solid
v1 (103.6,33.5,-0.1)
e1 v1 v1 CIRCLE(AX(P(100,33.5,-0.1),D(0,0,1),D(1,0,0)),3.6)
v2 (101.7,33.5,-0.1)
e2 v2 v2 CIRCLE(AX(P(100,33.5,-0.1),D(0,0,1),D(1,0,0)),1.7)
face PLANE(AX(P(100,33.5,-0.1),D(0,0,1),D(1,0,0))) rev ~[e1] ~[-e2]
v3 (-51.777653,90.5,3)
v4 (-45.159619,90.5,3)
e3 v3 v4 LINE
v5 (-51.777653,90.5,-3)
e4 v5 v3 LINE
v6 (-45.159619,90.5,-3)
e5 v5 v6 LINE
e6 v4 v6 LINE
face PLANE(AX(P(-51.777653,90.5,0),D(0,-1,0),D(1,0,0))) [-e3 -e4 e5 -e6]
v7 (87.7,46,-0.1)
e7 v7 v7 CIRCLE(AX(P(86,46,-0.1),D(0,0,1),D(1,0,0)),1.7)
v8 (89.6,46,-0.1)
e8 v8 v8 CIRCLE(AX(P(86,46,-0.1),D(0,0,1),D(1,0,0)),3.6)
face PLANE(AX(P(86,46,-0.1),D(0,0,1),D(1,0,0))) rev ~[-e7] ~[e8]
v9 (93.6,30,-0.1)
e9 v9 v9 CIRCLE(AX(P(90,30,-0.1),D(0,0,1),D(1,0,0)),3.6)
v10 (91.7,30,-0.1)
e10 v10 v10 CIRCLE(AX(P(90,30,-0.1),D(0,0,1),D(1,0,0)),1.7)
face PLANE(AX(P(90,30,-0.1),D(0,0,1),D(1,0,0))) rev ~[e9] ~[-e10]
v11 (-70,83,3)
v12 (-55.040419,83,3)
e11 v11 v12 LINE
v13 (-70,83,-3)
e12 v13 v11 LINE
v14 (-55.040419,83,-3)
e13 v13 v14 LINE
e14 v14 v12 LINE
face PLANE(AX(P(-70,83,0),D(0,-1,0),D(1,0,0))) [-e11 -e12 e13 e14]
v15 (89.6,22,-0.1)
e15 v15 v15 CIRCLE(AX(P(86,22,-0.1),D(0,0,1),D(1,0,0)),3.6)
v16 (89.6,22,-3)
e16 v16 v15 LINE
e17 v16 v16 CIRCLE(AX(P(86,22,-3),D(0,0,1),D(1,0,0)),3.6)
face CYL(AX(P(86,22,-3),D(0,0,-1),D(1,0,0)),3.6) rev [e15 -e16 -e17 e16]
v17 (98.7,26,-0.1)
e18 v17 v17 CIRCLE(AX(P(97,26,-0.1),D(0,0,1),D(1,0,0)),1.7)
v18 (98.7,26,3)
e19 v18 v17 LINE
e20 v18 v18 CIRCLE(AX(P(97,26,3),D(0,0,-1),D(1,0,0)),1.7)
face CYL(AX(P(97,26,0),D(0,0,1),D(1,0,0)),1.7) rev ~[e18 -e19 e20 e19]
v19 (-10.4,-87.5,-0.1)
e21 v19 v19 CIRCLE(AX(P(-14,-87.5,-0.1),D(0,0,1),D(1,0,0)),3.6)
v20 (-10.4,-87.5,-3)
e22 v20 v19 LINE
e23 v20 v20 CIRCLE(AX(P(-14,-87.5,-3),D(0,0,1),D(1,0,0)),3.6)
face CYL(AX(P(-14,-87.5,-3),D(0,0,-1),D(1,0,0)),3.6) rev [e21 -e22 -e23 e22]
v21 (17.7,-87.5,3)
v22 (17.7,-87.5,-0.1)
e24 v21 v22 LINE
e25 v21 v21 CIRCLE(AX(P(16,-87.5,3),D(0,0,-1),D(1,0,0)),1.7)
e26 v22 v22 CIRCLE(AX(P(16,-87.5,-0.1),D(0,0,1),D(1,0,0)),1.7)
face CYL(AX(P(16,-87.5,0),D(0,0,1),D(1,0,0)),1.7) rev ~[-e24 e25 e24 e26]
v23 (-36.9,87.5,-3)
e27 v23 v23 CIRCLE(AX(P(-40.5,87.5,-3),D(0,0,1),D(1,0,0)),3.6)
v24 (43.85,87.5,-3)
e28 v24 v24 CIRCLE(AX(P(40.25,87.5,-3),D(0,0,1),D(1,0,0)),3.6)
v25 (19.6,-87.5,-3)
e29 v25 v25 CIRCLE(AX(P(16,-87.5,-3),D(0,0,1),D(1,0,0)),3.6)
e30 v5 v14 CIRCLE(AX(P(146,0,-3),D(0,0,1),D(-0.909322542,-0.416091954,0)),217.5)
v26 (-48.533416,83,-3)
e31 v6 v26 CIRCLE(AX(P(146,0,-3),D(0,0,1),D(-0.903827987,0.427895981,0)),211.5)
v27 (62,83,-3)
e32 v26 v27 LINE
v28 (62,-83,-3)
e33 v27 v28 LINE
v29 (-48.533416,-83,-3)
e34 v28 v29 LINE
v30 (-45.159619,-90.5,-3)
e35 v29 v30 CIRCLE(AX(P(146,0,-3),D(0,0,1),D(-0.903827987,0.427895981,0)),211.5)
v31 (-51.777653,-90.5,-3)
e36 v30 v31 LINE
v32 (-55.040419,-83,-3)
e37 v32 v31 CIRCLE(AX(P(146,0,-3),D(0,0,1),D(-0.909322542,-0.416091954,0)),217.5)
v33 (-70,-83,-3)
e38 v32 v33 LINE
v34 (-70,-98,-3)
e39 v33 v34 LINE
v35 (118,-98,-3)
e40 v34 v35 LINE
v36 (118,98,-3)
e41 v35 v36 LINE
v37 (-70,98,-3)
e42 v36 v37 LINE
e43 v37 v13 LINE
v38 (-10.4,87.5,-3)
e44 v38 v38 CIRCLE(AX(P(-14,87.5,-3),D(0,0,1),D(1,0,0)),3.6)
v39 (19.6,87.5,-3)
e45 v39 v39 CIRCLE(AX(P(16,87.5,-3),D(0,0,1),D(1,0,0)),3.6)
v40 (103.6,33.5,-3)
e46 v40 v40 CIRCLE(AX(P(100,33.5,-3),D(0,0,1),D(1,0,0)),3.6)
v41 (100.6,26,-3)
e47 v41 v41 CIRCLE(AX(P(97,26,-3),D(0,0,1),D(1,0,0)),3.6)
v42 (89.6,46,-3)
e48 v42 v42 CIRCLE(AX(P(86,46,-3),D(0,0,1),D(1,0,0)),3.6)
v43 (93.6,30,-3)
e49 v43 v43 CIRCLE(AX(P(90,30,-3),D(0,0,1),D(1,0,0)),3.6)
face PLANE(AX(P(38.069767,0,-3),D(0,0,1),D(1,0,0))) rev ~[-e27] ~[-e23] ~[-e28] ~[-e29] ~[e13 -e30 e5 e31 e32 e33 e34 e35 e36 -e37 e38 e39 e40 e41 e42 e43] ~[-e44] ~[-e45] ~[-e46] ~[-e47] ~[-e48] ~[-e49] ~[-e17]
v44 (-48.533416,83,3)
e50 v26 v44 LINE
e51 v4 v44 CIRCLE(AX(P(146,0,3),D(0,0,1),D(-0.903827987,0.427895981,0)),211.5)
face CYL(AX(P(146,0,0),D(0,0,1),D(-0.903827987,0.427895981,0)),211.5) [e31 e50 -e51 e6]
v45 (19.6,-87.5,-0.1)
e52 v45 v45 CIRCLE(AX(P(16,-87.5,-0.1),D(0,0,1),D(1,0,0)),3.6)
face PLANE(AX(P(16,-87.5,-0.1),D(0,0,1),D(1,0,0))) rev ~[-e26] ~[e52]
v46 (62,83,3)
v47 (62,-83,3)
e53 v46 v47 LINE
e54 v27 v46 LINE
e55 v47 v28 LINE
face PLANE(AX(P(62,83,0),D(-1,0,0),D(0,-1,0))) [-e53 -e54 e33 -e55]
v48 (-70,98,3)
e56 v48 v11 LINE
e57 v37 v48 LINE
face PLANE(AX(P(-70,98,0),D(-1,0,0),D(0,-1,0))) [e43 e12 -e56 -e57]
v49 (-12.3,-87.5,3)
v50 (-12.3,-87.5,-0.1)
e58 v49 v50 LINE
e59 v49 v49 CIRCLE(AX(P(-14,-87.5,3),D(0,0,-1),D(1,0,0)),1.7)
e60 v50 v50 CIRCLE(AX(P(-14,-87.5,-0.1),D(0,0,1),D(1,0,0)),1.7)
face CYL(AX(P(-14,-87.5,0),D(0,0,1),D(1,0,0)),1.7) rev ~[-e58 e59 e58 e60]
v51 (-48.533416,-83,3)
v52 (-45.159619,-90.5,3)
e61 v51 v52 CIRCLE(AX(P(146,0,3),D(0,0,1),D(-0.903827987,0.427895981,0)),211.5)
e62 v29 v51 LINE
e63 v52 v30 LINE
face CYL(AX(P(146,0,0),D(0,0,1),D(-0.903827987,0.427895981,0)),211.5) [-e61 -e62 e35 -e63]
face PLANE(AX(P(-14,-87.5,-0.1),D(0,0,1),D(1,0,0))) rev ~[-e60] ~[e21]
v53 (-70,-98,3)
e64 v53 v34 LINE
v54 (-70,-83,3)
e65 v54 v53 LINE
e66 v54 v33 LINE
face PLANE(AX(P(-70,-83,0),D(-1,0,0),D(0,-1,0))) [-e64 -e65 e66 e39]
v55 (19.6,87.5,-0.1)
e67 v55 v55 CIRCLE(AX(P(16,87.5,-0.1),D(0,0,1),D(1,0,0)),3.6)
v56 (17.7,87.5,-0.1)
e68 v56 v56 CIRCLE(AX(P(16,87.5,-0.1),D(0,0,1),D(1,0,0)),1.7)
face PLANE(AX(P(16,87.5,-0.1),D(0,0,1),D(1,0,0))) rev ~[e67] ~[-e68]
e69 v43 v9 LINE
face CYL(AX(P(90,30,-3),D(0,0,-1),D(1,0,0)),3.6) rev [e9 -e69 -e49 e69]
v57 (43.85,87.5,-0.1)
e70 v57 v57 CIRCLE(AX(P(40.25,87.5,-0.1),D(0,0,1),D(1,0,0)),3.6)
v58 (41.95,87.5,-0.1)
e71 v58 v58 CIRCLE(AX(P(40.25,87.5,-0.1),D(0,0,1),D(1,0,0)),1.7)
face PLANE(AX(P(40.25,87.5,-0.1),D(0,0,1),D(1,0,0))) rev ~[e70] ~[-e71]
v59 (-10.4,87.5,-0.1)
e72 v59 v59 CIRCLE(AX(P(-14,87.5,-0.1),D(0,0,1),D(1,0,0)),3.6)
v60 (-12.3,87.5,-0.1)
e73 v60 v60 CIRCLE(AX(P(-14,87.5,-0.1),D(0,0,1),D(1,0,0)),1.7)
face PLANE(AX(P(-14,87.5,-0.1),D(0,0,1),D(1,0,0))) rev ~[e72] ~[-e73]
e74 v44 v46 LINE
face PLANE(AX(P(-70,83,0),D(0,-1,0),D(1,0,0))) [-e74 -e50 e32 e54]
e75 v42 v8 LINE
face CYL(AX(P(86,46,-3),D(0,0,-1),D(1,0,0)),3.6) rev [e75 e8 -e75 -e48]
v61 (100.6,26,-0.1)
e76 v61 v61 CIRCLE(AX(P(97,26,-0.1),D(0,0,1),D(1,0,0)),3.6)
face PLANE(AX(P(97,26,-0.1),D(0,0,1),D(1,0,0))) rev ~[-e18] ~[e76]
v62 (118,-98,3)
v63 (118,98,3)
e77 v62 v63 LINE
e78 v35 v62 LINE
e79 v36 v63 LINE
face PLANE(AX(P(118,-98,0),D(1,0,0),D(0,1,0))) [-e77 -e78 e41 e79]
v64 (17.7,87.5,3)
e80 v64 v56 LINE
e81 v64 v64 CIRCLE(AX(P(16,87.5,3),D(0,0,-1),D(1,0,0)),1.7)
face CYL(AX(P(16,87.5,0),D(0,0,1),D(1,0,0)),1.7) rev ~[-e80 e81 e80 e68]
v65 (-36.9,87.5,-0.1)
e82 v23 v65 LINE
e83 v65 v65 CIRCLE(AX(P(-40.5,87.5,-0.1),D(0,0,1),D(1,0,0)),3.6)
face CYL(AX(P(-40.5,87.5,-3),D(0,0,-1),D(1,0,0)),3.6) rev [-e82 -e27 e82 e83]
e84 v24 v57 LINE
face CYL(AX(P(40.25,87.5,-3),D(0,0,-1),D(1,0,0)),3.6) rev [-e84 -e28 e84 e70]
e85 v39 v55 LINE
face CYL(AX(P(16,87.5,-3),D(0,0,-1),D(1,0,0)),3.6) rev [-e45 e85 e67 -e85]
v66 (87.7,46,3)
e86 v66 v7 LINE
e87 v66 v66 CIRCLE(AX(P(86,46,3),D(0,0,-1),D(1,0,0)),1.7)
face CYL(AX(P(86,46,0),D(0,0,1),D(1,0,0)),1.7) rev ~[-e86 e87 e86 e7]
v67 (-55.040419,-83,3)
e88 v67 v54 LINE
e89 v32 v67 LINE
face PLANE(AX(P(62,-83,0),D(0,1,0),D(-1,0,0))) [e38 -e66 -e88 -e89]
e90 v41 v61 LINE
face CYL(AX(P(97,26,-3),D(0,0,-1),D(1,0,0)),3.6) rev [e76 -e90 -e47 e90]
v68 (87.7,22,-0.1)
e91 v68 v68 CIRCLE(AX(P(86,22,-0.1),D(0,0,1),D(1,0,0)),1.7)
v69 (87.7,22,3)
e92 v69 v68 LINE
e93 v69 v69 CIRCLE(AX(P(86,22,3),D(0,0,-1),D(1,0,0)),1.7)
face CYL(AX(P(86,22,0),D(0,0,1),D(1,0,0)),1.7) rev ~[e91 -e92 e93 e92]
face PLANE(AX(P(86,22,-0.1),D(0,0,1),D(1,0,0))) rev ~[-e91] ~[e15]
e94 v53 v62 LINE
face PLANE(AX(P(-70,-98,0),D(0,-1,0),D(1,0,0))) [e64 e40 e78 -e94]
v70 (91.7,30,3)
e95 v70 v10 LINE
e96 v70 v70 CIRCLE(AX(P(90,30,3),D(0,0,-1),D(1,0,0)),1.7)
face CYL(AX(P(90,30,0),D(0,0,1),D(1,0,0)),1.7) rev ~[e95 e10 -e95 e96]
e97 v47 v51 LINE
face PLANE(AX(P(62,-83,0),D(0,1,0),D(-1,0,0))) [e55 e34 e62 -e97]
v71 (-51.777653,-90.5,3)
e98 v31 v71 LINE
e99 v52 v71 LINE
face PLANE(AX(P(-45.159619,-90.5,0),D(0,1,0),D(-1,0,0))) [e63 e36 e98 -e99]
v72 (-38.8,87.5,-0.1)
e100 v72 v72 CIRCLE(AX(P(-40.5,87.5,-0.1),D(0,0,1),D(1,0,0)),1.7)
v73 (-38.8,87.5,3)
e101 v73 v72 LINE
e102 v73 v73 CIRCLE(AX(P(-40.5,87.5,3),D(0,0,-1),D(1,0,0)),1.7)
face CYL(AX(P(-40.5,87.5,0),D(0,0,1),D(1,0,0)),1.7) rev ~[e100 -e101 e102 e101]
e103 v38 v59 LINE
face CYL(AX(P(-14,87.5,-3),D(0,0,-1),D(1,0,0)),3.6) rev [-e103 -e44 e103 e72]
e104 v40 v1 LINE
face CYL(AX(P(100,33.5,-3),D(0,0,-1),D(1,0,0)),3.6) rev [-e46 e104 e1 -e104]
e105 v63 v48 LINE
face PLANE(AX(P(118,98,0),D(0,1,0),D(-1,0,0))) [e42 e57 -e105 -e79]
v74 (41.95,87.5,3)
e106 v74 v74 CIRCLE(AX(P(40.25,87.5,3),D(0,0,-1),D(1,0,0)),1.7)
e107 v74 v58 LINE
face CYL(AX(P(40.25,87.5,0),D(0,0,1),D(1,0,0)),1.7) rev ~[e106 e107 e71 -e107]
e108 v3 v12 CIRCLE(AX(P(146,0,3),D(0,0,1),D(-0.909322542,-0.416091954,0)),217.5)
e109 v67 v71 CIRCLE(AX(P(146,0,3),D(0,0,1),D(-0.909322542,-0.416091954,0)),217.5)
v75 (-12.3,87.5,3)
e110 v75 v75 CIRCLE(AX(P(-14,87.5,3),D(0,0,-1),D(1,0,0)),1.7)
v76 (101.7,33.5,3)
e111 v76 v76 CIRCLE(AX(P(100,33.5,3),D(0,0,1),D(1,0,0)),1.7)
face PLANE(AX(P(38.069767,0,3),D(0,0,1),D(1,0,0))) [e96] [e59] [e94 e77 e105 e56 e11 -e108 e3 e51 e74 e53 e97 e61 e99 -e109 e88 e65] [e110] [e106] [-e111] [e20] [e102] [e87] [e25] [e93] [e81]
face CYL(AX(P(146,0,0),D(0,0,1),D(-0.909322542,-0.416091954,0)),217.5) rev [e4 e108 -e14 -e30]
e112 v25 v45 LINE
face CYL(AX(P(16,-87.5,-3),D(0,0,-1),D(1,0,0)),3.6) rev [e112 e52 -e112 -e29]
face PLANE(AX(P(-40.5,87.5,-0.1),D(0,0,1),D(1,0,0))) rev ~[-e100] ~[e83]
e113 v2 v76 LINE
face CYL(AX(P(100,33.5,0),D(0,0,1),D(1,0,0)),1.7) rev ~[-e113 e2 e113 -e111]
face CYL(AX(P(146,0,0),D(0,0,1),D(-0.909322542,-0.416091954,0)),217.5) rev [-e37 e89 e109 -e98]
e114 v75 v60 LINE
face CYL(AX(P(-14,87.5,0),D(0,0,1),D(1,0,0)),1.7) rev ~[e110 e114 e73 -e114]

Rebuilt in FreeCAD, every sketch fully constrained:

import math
import FreeCAD as App
import Part
import Sketcher


def add_polygon(sketch, points):
    """Adds a closed chain of lines whose ends are joined by coincident constraints."""
    first, n = sketch.GeometryCount, len(points)
    for a, b in zip(points, points[1:] + points[:1]):
        sketch.addGeometry(Part.LineSegment(App.Vector(*a, 0), App.Vector(*b, 0)), False)
    for i in range(n):
        sketch.addConstraint(Sketcher.Constraint("Coincident", first + i, 2, first + (i + 1) % n, 1))

doc = App.newDocument("Part")
body = doc.addObject("PartDesign::Body", "Body")

sketch1 = body.newObject("Sketcher::SketchObject", "Sketch")
sketch1.AttachmentSupport = (doc.getObject("XY_Plane"), [""])
sketch1.MapMode = "FlatFace"
add_polygon(sketch1, [(-70, -98), (118, -98), (118, 98), (-70, 98), (-70, 83), (62, 83), (62, -83), (-70, -83)])
sketch1.addConstraint([
    Sketcher.Constraint("Horizontal", 0),
    Sketcher.Constraint("Vertical", 1),
    Sketcher.Constraint("Horizontal", 2),
    Sketcher.Constraint("Vertical", 3),
    Sketcher.Constraint("Horizontal", 4),
    Sketcher.Constraint("Vertical", 5),
    Sketcher.Constraint("Horizontal", 6),
    Sketcher.Constraint("Vertical", 7),
    Sketcher.Constraint("Symmetric", 3, 2, 6, 2, -1),
    Sketcher.Constraint("Equal", 3, 7),
    Sketcher.Constraint("DistanceX", 0, 1, 0, 2, 188.0),
    Sketcher.Constraint("DistanceX", 4, 1, 4, 2, 132.0),
    Sketcher.Constraint("DistanceY", 1, 1, 1, 2, 196.0),
    Sketcher.Constraint("DistanceY", 3, 2, 3, 1, 15.0),
    Sketcher.Constraint("DistanceX", -1, 1, 0, 2, 118.0),
])
pad1 = body.newObject("PartDesign::Pad", "Pad")
pad1.Profile = sketch1
pad1.Length = 6
pad1.Midplane = True

sketch2 = body.newObject("Sketcher::SketchObject", "Sketch001")
sketch2.AttachmentSupport = (doc.getObject("XY_Plane"), [""])
sketch2.MapMode = "FlatFace"
sketch2.addGeometry([
    Part.LineSegment(App.Vector(-45.159619, 90.5, 0), App.Vector(-51.777653, 90.5, 0)),
    Part.ArcOfCircle(Part.Circle(App.Vector(146, 0, 0), App.Vector(0, 0, 1), 217.5), math.radians(155.411899), math.radians(204.588101)),
    Part.LineSegment(App.Vector(-51.777653, -90.5, 0), App.Vector(-45.159619, -90.5, 0)),
    Part.ArcOfCircle(Part.Circle(App.Vector(146, 0, 0), App.Vector(0, 0, 1), 211.5), math.radians(154.665892), math.radians(205.334108)),
], False)
sketch2.addConstraint([
    Sketcher.Constraint("Coincident", 0, 2, 1, 1),
    Sketcher.Constraint("Coincident", 1, 2, 2, 1),
    Sketcher.Constraint("Coincident", 2, 2, 3, 2),
    Sketcher.Constraint("Coincident", 3, 1, 0, 1),
    Sketcher.Constraint("Horizontal", 0),
    Sketcher.Constraint("Horizontal", 2),
    Sketcher.Constraint("Coincident", 3, 3, 1, 3),
    Sketcher.Constraint("Symmetric", 0, 2, 1, 2, -1),
    Sketcher.Constraint("Radius", 1, 217.5),
    Sketcher.Constraint("Radius", 3, 211.5),
    Sketcher.Constraint("DistanceX", -1, 1, 1, 3, 146.0),
    Sketcher.Constraint("DistanceY", 1, 2, 0, 2, 181.0),
])
pocket1 = body.newObject("PartDesign::Pocket", "Pocket")
pocket1.Profile = sketch2
pocket1.Length = 8
pocket1.Midplane = True

sketch3 = body.newObject("Sketcher::SketchObject", "Sketch002")
sketch3.AttachmentSupport = (doc.getObject("XY_Plane"), [""])
sketch3.MapMode = "FlatFace"
sketch3.addGeometry([
    Part.Circle(App.Vector(-14, -87.5, 0), App.Vector(0, 0, 1), 1.7),
    Part.Circle(App.Vector(16, -87.5, 0), App.Vector(0, 0, 1), 1.7),
    Part.Circle(App.Vector(-14, 87.5, 0), App.Vector(0, 0, 1), 1.7),
    Part.Circle(App.Vector(16, 87.5, 0), App.Vector(0, 0, 1), 1.7),
    Part.Circle(App.Vector(40.25, 87.5, 0), App.Vector(0, 0, 1), 1.7),
    Part.Circle(App.Vector(-40.5, 87.5, 0), App.Vector(0, 0, 1), 1.7),
    Part.Circle(App.Vector(86, 22, 0), App.Vector(0, 0, 1), 1.7),
    Part.Circle(App.Vector(86, 46, 0), App.Vector(0, 0, 1), 1.7),
    Part.Circle(App.Vector(90, 30, 0), App.Vector(0, 0, 1), 1.7),
    Part.Circle(App.Vector(97, 26, 0), App.Vector(0, 0, 1), 1.7),
    Part.Circle(App.Vector(100, 33.5, 0), App.Vector(0, 0, 1), 1.7),
], False)
sketch3.addConstraint([
    Sketcher.Constraint("Equal", 0, 1),
    Sketcher.Constraint("Equal", 1, 2),
    Sketcher.Constraint("Equal", 2, 3),
    Sketcher.Constraint("Equal", 3, 4),
    Sketcher.Constraint("Equal", 4, 5),
    Sketcher.Constraint("Equal", 5, 6),
    Sketcher.Constraint("Equal", 6, 7),
    Sketcher.Constraint("Equal", 7, 8),
    Sketcher.Constraint("Equal", 8, 9),
    Sketcher.Constraint("Equal", 9, 10),
    Sketcher.Constraint("Symmetric", 0, 3, 2, 3, -1),
    Sketcher.Constraint("Symmetric", 1, 3, 3, 3, -1),
    Sketcher.Constraint("Horizontal", 0, 3, 1, 3),
    Sketcher.Constraint("Horizontal", 3, 3, 4, 3),
    Sketcher.Constraint("Horizontal", 4, 3, 5, 3),
    Sketcher.Constraint("Vertical", 6, 3, 7, 3),
    Sketcher.Constraint("Diameter", 0, 3.4),
    Sketcher.Constraint("DistanceX", 0, 3, -1, 1, 14.0),
    Sketcher.Constraint("DistanceX", -1, 1, 1, 3, 16.0),
    Sketcher.Constraint("DistanceX", -1, 1, 6, 3, 86.0),
    Sketcher.Constraint("DistanceY", -1, 1, 6, 3, 22.0),
    Sketcher.Constraint("DistanceY", -1, 1, 7, 3, 46.0),
    Sketcher.Constraint("DistanceX", -1, 1, 8, 3, 90.0),
    Sketcher.Constraint("DistanceY", -1, 1, 8, 3, 30.0),
    Sketcher.Constraint("DistanceX", -1, 1, 9, 3, 97.0),
    Sketcher.Constraint("DistanceY", -1, 1, 9, 3, 26.0),
    Sketcher.Constraint("DistanceX", -1, 1, 10, 3, 100.0),
    Sketcher.Constraint("DistanceY", 0, 3, 2, 3, 175.0),
    Sketcher.Constraint("DistanceY", 10, 3, 4, 3, 54.0),
    Sketcher.Constraint("DistanceX", 5, 3, -1, 1, 40.5),
    Sketcher.Constraint("DistanceX", -1, 1, 4, 3, 40.25),
])
pocket2 = body.newObject("PartDesign::Pocket", "Pocket001")
pocket2.Profile = sketch3
pocket2.Length = 8
pocket2.Midplane = True

sketch4 = body.newObject("Sketcher::SketchObject", "Sketch003")
sketch4.AttachmentSupport = (doc.getObject("XY_Plane"), [""])
sketch4.MapMode = "FlatFace"
sketch4.AttachmentOffset = App.Placement(App.Vector(0, 0, -3), App.Rotation())
sketch4.addGeometry([
    Part.Circle(App.Vector(-14, -87.5, 0), App.Vector(0, 0, 1), 3.6),
    Part.Circle(App.Vector(16, -87.5, 0), App.Vector(0, 0, 1), 3.6),
    Part.Circle(App.Vector(-14, 87.5, 0), App.Vector(0, 0, 1), 3.6),
    Part.Circle(App.Vector(16, 87.5, 0), App.Vector(0, 0, 1), 3.6),
    Part.Circle(App.Vector(40.25, 87.5, 0), App.Vector(0, 0, 1), 3.6),
    Part.Circle(App.Vector(-40.5, 87.5, 0), App.Vector(0, 0, 1), 3.6),
    Part.Circle(App.Vector(86, 22, 0), App.Vector(0, 0, 1), 3.6),
    Part.Circle(App.Vector(86, 46, 0), App.Vector(0, 0, 1), 3.6),
    Part.Circle(App.Vector(90, 30, 0), App.Vector(0, 0, 1), 3.6),
    Part.Circle(App.Vector(97, 26, 0), App.Vector(0, 0, 1), 3.6),
    Part.Circle(App.Vector(100, 33.5, 0), App.Vector(0, 0, 1), 3.6),
], False)
sketch4.addConstraint([
    Sketcher.Constraint("Equal", 0, 1),
    Sketcher.Constraint("Equal", 1, 2),
    Sketcher.Constraint("Equal", 2, 3),
    Sketcher.Constraint("Equal", 3, 4),
    Sketcher.Constraint("Equal", 4, 5),
    Sketcher.Constraint("Equal", 5, 6),
    Sketcher.Constraint("Equal", 6, 7),
    Sketcher.Constraint("Equal", 7, 8),
    Sketcher.Constraint("Equal", 8, 9),
    Sketcher.Constraint("Equal", 9, 10),
    Sketcher.Constraint("Symmetric", 0, 3, 2, 3, -1),
    Sketcher.Constraint("Symmetric", 1, 3, 3, 3, -1),
    Sketcher.Constraint("Horizontal", 0, 3, 1, 3),
    Sketcher.Constraint("Horizontal", 3, 3, 4, 3),
    Sketcher.Constraint("Horizontal", 4, 3, 5, 3),
    Sketcher.Constraint("Vertical", 6, 3, 7, 3),
    Sketcher.Constraint("Diameter", 0, 7.2),
    Sketcher.Constraint("DistanceX", 0, 3, -1, 1, 14.0),
    Sketcher.Constraint("DistanceX", -1, 1, 1, 3, 16.0),
    Sketcher.Constraint("DistanceX", -1, 1, 6, 3, 86.0),
    Sketcher.Constraint("DistanceY", -1, 1, 6, 3, 22.0),
    Sketcher.Constraint("DistanceY", -1, 1, 7, 3, 46.0),
    Sketcher.Constraint("DistanceX", -1, 1, 8, 3, 90.0),
    Sketcher.Constraint("DistanceY", -1, 1, 8, 3, 30.0),
    Sketcher.Constraint("DistanceX", -1, 1, 9, 3, 97.0),
    Sketcher.Constraint("DistanceY", -1, 1, 9, 3, 26.0),
    Sketcher.Constraint("DistanceX", -1, 1, 10, 3, 100.0),
    Sketcher.Constraint("DistanceY", 0, 3, 2, 3, 175.0),
    Sketcher.Constraint("DistanceY", 10, 3, 4, 3, 54.0),
    Sketcher.Constraint("DistanceX", 5, 3, -1, 1, 40.5),
    Sketcher.Constraint("DistanceX", -1, 1, 4, 3, 40.25),
])
pocket3 = body.newObject("PartDesign::Pocket", "Pocket002")
pocket3.Profile = sketch4
pocket3.Length = 2.9
pocket3.Reversed = True

doc.recompute()
